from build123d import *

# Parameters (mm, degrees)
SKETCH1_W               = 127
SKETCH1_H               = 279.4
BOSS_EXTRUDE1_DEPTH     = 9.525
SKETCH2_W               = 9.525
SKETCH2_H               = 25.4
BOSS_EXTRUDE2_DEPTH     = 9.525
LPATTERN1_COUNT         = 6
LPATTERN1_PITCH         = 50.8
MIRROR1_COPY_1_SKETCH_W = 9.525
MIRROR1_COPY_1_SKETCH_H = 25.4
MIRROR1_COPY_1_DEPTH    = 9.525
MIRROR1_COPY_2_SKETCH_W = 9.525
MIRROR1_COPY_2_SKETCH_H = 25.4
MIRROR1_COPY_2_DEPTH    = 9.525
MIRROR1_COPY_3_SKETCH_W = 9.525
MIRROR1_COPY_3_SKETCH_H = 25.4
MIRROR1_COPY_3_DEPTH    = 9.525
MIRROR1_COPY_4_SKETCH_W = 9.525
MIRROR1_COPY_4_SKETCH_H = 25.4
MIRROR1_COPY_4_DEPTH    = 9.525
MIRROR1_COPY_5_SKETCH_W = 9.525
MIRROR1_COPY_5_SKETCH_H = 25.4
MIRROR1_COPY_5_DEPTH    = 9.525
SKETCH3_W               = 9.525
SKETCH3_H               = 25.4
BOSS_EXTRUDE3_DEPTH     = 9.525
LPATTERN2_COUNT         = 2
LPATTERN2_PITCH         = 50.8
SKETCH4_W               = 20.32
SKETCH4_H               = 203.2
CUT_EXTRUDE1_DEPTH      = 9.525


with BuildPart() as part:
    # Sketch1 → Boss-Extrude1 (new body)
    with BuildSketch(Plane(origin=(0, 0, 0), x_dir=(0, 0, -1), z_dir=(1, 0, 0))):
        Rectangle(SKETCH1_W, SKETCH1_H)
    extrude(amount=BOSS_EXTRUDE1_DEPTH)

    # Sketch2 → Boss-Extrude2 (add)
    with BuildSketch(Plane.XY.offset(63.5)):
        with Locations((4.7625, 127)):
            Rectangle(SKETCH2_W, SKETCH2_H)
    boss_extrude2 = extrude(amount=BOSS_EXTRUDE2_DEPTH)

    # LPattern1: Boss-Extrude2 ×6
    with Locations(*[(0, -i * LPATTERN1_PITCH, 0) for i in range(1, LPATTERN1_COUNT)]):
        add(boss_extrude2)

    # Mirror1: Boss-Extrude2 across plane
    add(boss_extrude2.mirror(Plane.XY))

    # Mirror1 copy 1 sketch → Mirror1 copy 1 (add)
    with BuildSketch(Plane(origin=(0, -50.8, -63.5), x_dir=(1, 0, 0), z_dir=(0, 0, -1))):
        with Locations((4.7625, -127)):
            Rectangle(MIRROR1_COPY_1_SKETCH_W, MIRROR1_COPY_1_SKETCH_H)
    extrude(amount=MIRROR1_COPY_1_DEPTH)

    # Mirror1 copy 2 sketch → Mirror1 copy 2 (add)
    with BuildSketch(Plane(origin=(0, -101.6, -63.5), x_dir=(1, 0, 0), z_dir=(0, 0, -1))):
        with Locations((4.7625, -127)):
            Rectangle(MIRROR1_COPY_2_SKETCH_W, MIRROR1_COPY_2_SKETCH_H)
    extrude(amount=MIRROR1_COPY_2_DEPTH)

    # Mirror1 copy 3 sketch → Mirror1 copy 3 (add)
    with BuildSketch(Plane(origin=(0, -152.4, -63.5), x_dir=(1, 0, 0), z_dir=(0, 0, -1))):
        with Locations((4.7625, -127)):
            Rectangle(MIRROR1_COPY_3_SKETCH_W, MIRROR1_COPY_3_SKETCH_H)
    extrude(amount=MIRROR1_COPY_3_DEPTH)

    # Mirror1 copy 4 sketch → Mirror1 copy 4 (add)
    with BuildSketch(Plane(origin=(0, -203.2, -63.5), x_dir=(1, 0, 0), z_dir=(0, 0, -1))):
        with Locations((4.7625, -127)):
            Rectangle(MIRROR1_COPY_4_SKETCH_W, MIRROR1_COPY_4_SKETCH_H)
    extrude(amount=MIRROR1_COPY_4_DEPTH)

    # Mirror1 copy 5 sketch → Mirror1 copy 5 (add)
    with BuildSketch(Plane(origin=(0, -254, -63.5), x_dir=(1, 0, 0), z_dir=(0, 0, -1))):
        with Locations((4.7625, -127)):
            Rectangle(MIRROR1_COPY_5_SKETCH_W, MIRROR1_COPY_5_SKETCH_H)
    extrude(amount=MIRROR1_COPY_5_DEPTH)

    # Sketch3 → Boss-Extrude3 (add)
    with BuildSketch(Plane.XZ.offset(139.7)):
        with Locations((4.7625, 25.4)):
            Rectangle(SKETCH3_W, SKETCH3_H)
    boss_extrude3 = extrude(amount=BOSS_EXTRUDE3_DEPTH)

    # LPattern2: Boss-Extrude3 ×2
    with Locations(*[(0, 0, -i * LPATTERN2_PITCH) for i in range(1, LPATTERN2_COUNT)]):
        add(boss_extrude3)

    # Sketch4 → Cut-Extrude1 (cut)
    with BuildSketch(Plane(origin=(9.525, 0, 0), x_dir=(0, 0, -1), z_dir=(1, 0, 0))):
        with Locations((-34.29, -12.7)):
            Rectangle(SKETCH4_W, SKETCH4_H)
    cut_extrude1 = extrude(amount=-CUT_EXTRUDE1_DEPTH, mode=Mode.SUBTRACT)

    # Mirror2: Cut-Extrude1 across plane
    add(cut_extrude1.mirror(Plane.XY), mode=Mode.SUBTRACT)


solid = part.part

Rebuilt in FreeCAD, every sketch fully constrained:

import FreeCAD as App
import Part
import Sketcher

V = App.Vector
Q = App.Units.Quantity

doc = App.newDocument("Part")
params = doc.addObject("Spreadsheet::Sheet", "Params")
for row, (alias, value) in enumerate([
    ("sketch1_width", "11 in"),
    ("sketch1_height", "5 in"),
    ("pad1_length", "0.375 in"),
    ("sketch2_height", "1 in"),
    ("sketch2_width", "0.375 in"),
    ("pad2_length", "0.375 in"),
    ("linearpattern_pitch", "2 in"),
    ("sketch3_height", "1 in"),
    ("sketch3_width", "0.375 in"),
    ("pad3_length", "0.375 in"),
    ("sketch4_height", "1 in"),
    ("sketch4_width", "0.375 in"),
    ("pad4_length", "0.375 in"),
    ("sketch5_height", "1 in"),
    ("sketch5_width", "0.375 in"),
    ("pad5_length", "0.375 in"),
    ("sketch6_height", "1 in"),
    ("sketch6_width", "0.375 in"),
    ("pad6_length", "0.375 in"),
    ("sketch7_height", "1 in"),
    ("sketch7_width", "0.375 in"),
    ("pad7_length", "0.375 in"),
    ("sketch8_height", "1 in"),
    ("sketch8_width", "0.375 in"),
    ("pad8_length", "0.375 in"),
    ("linearpattern2_pitch", "2 in"),
    ("sketch9_width", "8 in"),
    ("sketch9_height", "0.8 in"),
    ("pocket1_length", "0.375 in"),
], start=1):
    params.set(f"A{row}", alias)
    params.set(f"B{row}", "=" + value)
    params.setAlias(f"B{row}", alias)

body = doc.addObject("PartDesign::Body", "Body")

sketch1 = body.newObject("Sketcher::SketchObject", "Sketch")
sketch1.AttachmentSupport = (doc.getObject("YZ_Plane"), [""])
sketch1.MapMode = "FlatFace"
sketch1.addGeometry([
    Part.LineSegment(V(140, 64, 0), V(-140, 64, 0)),
    Part.LineSegment(V(-140, 64, 0), V(-140, -64, 0)),
    Part.LineSegment(V(-140, -64, 0), V(140, -64, 0)),
    Part.LineSegment(V(140, -64, 0), V(140, 64, 0)),
], False)
sketch1.addConstraint([
    Sketcher.Constraint("Coincident", 0, 2, 1, 1),
    Sketcher.Constraint("Coincident", 1, 2, 2, 1),
    Sketcher.Constraint("Coincident", 2, 2, 3, 1),
    Sketcher.Constraint("Coincident", 3, 2, 0, 1),
    Sketcher.Constraint("Horizontal", 0),
    Sketcher.Constraint("Vertical", 1),
    Sketcher.Constraint("Horizontal", 2),
    Sketcher.Constraint("Vertical", 3),
    Sketcher.Constraint("Symmetric", 0, 2, 2, 2, -1, 1),
    Sketcher.Constraint("DistanceX", 0, 2, 0, 1, Q("11 in")),
    Sketcher.Constraint("DistanceY", 1, 2, 1, 1, Q("5 in")),
])
sketch1.setExpression("Constraints[9]", "Params.sketch1_width")
sketch1.setExpression("Constraints[10]", "Params.sketch1_height")
pad1 = body.newObject("PartDesign::Pad", "Pad")
pad1.Profile = sketch1
pad1.setExpression("Length", "Params.pad1_length")

sketch2 = body.newObject("Sketcher::SketchObject", "Sketch001")
sketch2.AttachmentSupport = (doc.getObject("XY_Plane"), [""])
sketch2.MapMode = "FlatFace"
sketch2.AttachmentOffset = App.Placement(V(0, 0, 2.5 * 25.4), App.Rotation())
sketch2.addGeometry([
    Part.LineSegment(V(0, 140, 0), V(0, 114, 0)),
    Part.LineSegment(V(0, 114, 0), V(10, 114, 0)),
    Part.LineSegment(V(10, 114, 0), V(10, 140, 0)),
    Part.LineSegment(V(10, 140, 0), V(0, 140, 0)),
], False)
sketch2.addConstraint([
    Sketcher.Constraint("Coincident", 0, 2, 1, 1),
    Sketcher.Constraint("Coincident", 1, 2, 2, 1),
    Sketcher.Constraint("Coincident", 2, 2, 3, 1),
    Sketcher.Constraint("Coincident", 3, 2, 0, 1),
    Sketcher.Constraint("Vertical", 0),
    Sketcher.Constraint("Horizontal", 1),
    Sketcher.Constraint("Vertical", 2),
    Sketcher.Constraint("Horizontal", 3),
    Sketcher.Constraint("PointOnObject", 0, 2, -2),
    Sketcher.Constraint("DistanceY", 0, 2, 0, 1, Q("1 in")),
    Sketcher.Constraint("DistanceY", -1, 1, 0, 2, Q("4.5 in")),
    Sketcher.Constraint("DistanceX", 1, 1, 1, 2, Q("0.375 in")),
])
sketch2.setExpression("Constraints[9]", "Params.sketch2_height")
sketch2.setExpression("Constraints[11]", "Params.sketch2_width")
pad2 = body.newObject("PartDesign::Pad", "Pad001")
pad2.Profile = sketch2
pad2.setExpression("Length", "Params.pad2_length")
doc.recompute()

linearpattern = body.newObject("PartDesign::LinearPattern", "LinearPattern")
linearpattern.Originals = [pad2]
linearpattern.Direction = (doc.getObject("Y_Axis"), [""])
linearpattern.Mode = "offset"
linearpattern.setExpression("Offset", "Params.linearpattern_pitch")
linearpattern.Occurrences = 6
linearpattern.Reversed = True
body.Tip = linearpattern
doc.recompute()

mirrored = body.newObject("PartDesign::Mirrored", "Mirrored")
mirrored.Originals = [pad2]
mirrored.MirrorPlane = (doc.getObject("XY_Plane"), [""])
body.Tip = mirrored

sketch3 = body.newObject("Sketcher::SketchObject", "Sketch002")
sketch3.AttachmentSupport = (doc.getObject("XY_Plane"), [""])
sketch3.MapMode = "FlatFace"
sketch3.AttachmentOffset = App.Placement(V(0, 0, -2.5 * 25.4), App.Rotation())
sketch3.addGeometry([
    Part.LineSegment(V(0, 64, 0), V(0, 89, 0)),
    Part.LineSegment(V(0, 89, 0), V(10, 89, 0)),
    Part.LineSegment(V(10, 89, 0), V(10, 64, 0)),
    Part.LineSegment(V(10, 64, 0), V(0, 64, 0)),
], False)
sketch3.addConstraint([
    Sketcher.Constraint("Coincident", 0, 2, 1, 1),
    Sketcher.Constraint("Coincident", 1, 2, 2, 1),
    Sketcher.Constraint("Coincident", 2, 2, 3, 1),
    Sketcher.Constraint("Coincident", 3, 2, 0, 1),
    Sketcher.Constraint("Vertical", 0),
    Sketcher.Constraint("Horizontal", 1),
    Sketcher.Constraint("Vertical", 2),
    Sketcher.Constraint("Horizontal", 3),
    Sketcher.Constraint("PointOnObject", 0, 2, -2),
    Sketcher.Constraint("DistanceY", 0, 1, 0, 2, Q("1 in")),
    Sketcher.Constraint("DistanceY", -1, 1, 0, 2, Q("3.5 in")),
    Sketcher.Constraint("DistanceX", 1, 1, 1, 2, Q("0.375 in")),
])
sketch3.setExpression("Constraints[9]", "Params.sketch3_height")
sketch3.setExpression("Constraints[11]", "Params.sketch3_width")
pad3 = body.newObject("PartDesign::Pad", "Pad002")
pad3.Profile = sketch3
pad3.setExpression("Length", "Params.pad3_length")
pad3.Reversed = True

sketch4 = body.newObject("Sketcher::SketchObject", "Sketch003")
sketch4.AttachmentSupport = (doc.getObject("XY_Plane"), [""])
sketch4.MapMode = "FlatFace"
sketch4.AttachmentOffset = App.Placement(V(0, 0, -2.5 * 25.4), App.Rotation())
sketch4.addGeometry([
    Part.LineSegment(V(0, 13, 0), V(0, 38, 0)),
    Part.LineSegment(V(0, 38, 0), V(10, 38, 0)),
    Part.LineSegment(V(10, 38, 0), V(10, 13, 0)),
    Part.LineSegment(V(10, 13, 0), V(0, 13, 0)),
], False)
sketch4.addConstraint([
    Sketcher.Constraint("Coincident", 0, 2, 1, 1),
    Sketcher.Constraint("Coincident", 1, 2, 2, 1),
    Sketcher.Constraint("Coincident", 2, 2, 3, 1),
    Sketcher.Constraint("Coincident", 3, 2, 0, 1),
    Sketcher.Constraint("Vertical", 0),
    Sketcher.Constraint("Horizontal", 1),
    Sketcher.Constraint("Vertical", 2),
    Sketcher.Constraint("Horizontal", 3),
    Sketcher.Constraint("PointOnObject", 0, 2, -2),
    Sketcher.Constraint("DistanceY", 0, 1, 0, 2, Q("1 in")),
    Sketcher.Constraint("DistanceY", -1, 1, 0, 2, Q("1.5 in")),
    Sketcher.Constraint("DistanceX", 1, 1, 1, 2, Q("0.375 in")),
])
sketch4.setExpression("Constraints[9]", "Params.sketch4_height")
sketch4.setExpression("Constraints[11]", "Params.sketch4_width")
pad4 = body.newObject("PartDesign::Pad", "Pad003")
pad4.Profile = sketch4
pad4.setExpression("Length", "Params.pad4_length")
pad4.Reversed = True

sketch5 = body.newObject("Sketcher::SketchObject", "Sketch004")
sketch5.AttachmentSupport = (doc.getObject("XY_Plane"), [""])
sketch5.MapMode = "FlatFace"
sketch5.AttachmentOffset = App.Placement(V(0, 0, -2.5 * 25.4), App.Rotation())
sketch5.addGeometry([
    Part.LineSegment(V(0, -38, 0), V(0, -13, 0)),
    Part.LineSegment(V(0, -13, 0), V(10, -13, 0)),
    Part.LineSegment(V(10, -13, 0), V(10, -38, 0)),
    Part.LineSegment(V(10, -38, 0), V(0, -38, 0)),
], False)
sketch5.addConstraint([
    Sketcher.Constraint("Coincident", 0, 2, 1, 1),
    Sketcher.Constraint("Coincident", 1, 2, 2, 1),
    Sketcher.Constraint("Coincident", 2, 2, 3, 1),
    Sketcher.Constraint("Coincident", 3, 2, 0, 1),
    Sketcher.Constraint("Vertical", 0),
    Sketcher.Constraint("Horizontal", 1),
    Sketcher.Constraint("Vertical", 2),
    Sketcher.Constraint("Horizontal", 3),
    Sketcher.Constraint("PointOnObject", 0, 2, -2),
    Sketcher.Constraint("DistanceY", 0, 1, 0, 2, Q("1 in")),
    Sketcher.Constraint("DistanceY", 0, 2, -1, 1, Q("0.5 in")),
    Sketcher.Constraint("DistanceX", 1, 1, 1, 2, Q("0.375 in")),
])
sketch5.setExpression("Constraints[9]", "Params.sketch5_height")
sketch5.setExpression("Constraints[11]", "Params.sketch5_width")
pad5 = body.newObject("PartDesign::Pad", "Pad004")
pad5.Profile = sketch5
pad5.setExpression("Length", "Params.pad5_length")
pad5.Reversed = True

sketch6 = body.newObject("Sketcher::SketchObject", "Sketch005")
sketch6.AttachmentSupport = (doc.getObject("XY_Plane"), [""])
sketch6.MapMode = "FlatFace"
sketch6.AttachmentOffset = App.Placement(V(0, 0, -2.5 * 25.4), App.Rotation())
sketch6.addGeometry([
    Part.LineSegment(V(0, -89, 0), V(0, -64, 0)),
    Part.LineSegment(V(0, -64, 0), V(10, -64, 0)),
    Part.LineSegment(V(10, -64, 0), V(10, -89, 0)),
    Part.LineSegment(V(10, -89, 0), V(0, -89, 0)),
], False)
sketch6.addConstraint([
    Sketcher.Constraint("Coincident", 0, 2, 1, 1),
    Sketcher.Constraint("Coincident", 1, 2, 2, 1),
    Sketcher.Constraint("Coincident", 2, 2, 3, 1),
    Sketcher.Constraint("Coincident", 3, 2, 0, 1),
    Sketcher.Constraint("Vertical", 0),
    Sketcher.Constraint("Horizontal", 1),
    Sketcher.Constraint("Vertical", 2),
    Sketcher.Constraint("Horizontal", 3),
    Sketcher.Constraint("PointOnObject", 0, 2, -2),
    Sketcher.Constraint("DistanceY", 0, 1, 0, 2, Q("1 in")),
    Sketcher.Constraint("DistanceY", 0, 2, -1, 1, Q("2.5 in")),
    Sketcher.Constraint("DistanceX", 1, 1, 1, 2, Q("0.375 in")),
])
sketch6.setExpression("Constraints[9]", "Params.sketch6_height")
sketch6.setExpression("Constraints[11]", "Params.sketch6_width")
pad6 = body.newObject("PartDesign::Pad", "Pad005")
pad6.Profile = sketch6
pad6.setExpression("Length", "Params.pad6_length")
pad6.Reversed = True

sketch7 = body.newObject("Sketcher::SketchObject", "Sketch006")
sketch7.AttachmentSupport = (doc.getObject("XY_Plane"), [""])
sketch7.MapMode = "FlatFace"
sketch7.AttachmentOffset = App.Placement(V(0, 0, -2.5 * 25.4), App.Rotation())
sketch7.addGeometry([
    Part.LineSegment(V(0, -140, 0), V(0, -114, 0)),
    Part.LineSegment(V(0, -114, 0), V(10, -114, 0)),
    Part.LineSegment(V(10, -114, 0), V(10, -140, 0)),
    Part.LineSegment(V(10, -140, 0), V(0, -140, 0)),
], False)
sketch7.addConstraint([
    Sketcher.Constraint("Coincident", 0, 2, 1, 1),
    Sketcher.Constraint("Coincident", 1, 2, 2, 1),
    Sketcher.Constraint("Coincident", 2, 2, 3, 1),
    Sketcher.Constraint("Coincident", 3, 2, 0, 1),
    Sketcher.Constraint("Vertical", 0),
    Sketcher.Constraint("Horizontal", 1),
    Sketcher.Constraint("Vertical", 2),
    Sketcher.Constraint("Horizontal", 3),
    Sketcher.Constraint("PointOnObject", 0, 2, -2),
    Sketcher.Constraint("DistanceY", 0, 1, 0, 2, Q("1 in")),
    Sketcher.Constraint("DistanceY", 0, 2, -1, 1, Q("4.5 in")),
    Sketcher.Constraint("DistanceX", 1, 1, 1, 2, Q("0.375 in")),
])
sketch7.setExpression("Constraints[9]", "Params.sketch7_height")
sketch7.setExpression("Constraints[11]", "Params.sketch7_width")
pad7 = body.newObject("PartDesign::Pad", "Pad006")
pad7.Profile = sketch7
pad7.setExpression("Length", "Params.pad7_length")
pad7.Reversed = True

sketch8 = body.newObject("Sketcher::SketchObject", "Sketch007")
sketch8.AttachmentSupport = (doc.getObject("XZ_Plane"), [""])
sketch8.MapMode = "FlatFace"
sketch8.AttachmentOffset = App.Placement(V(0, 0, 5.5 * 25.4), App.Rotation())
sketch8.addGeometry([
    Part.LineSegment(V(0, 38, 0), V(0, 13, 0)),
    Part.LineSegment(V(0, 13, 0), V(10, 13, 0)),
    Part.LineSegment(V(10, 13, 0), V(10, 38, 0)),
    Part.LineSegment(V(10, 38, 0), V(0, 38, 0)),
], False)
sketch8.addConstraint([
    Sketcher.Constraint("Coincident", 0, 2, 1, 1),
    Sketcher.Constraint("Coincident", 1, 2, 2, 1),
    Sketcher.Constraint("Coincident", 2, 2, 3, 1),
    Sketcher.Constraint("Coincident", 3, 2, 0, 1),
    Sketcher.Constraint("Vertical", 0),
    Sketcher.Constraint("Horizontal", 1),
    Sketcher.Constraint("Vertical", 2),
    Sketcher.Constraint("Horizontal", 3),
    Sketcher.Constraint("PointOnObject", 0, 2, -2),
    Sketcher.Constraint("DistanceY", 0, 2, 0, 1, Q("1 in")),
    Sketcher.Constraint("DistanceY", -1, 1, 0, 2, Q("0.5 in")),
    Sketcher.Constraint("DistanceX", 1, 1, 1, 2, Q("0.375 in")),
])
sketch8.setExpression("Constraints[9]", "Params.sketch8_height")
sketch8.setExpression("Constraints[11]", "Params.sketch8_width")
pad8 = body.newObject("PartDesign::Pad", "Pad007")
pad8.Profile = sketch8
pad8.setExpression("Length", "Params.pad8_length")
doc.recompute()

linearpattern2 = body.newObject("PartDesign::LinearPattern", "LinearPattern001")
linearpattern2.Originals = [pad8]
linearpattern2.Direction = (doc.getObject("Z_Axis"), [""])
linearpattern2.Mode = "offset"
linearpattern2.setExpression("Offset", "Params.linearpattern2_pitch")
linearpattern2.Occurrences = 2
linearpattern2.Reversed = True
body.Tip = linearpattern2

sketch9 = body.newObject("Sketcher::SketchObject", "Sketch008")
sketch9.AttachmentSupport = (doc.getObject("YZ_Plane"), [""])
sketch9.MapMode = "FlatFace"
sketch9.AttachmentOffset = App.Placement(V(0, 0, 0.375 * 25.4), App.Rotation())
sketch9.addGeometry([
    Part.LineSegment(V(89, 44, 0), V(-114, 44, 0)),
    Part.LineSegment(V(-114, 44, 0), V(-114, 24, 0)),
    Part.LineSegment(V(-114, 24, 0), V(89, 24, 0)),
    Part.LineSegment(V(89, 24, 0), V(89, 44, 0)),
], False)
sketch9.addConstraint([
    Sketcher.Constraint("Coincident", 0, 2, 1, 1),
    Sketcher.Constraint("Coincident", 1, 2, 2, 1),
    Sketcher.Constraint("Coincident", 2, 2, 3, 1),
    Sketcher.Constraint("Coincident", 3, 2, 0, 1),
    Sketcher.Constraint("Horizontal", 0),
    Sketcher.Constraint("Vertical", 1),
    Sketcher.Constraint("Horizontal", 2),
    Sketcher.Constraint("Vertical", 3),
    Sketcher.Constraint("DistanceX", 0, 2, 0, 1, Q("8 in")),
    Sketcher.Constraint("DistanceY", 1, 2, 1, 1, Q("0.8 in")),
    Sketcher.Constraint("DistanceX", 0, 2, -1, 1, Q("4.5 in")),
    Sketcher.Constraint("DistanceY", -1, 1, 0, 2, Q("1.75 in")),
])
sketch9.setExpression("Constraints[8]", "Params.sketch9_width")
sketch9.setExpression("Constraints[9]", "Params.sketch9_height")
pocket1 = body.newObject("PartDesign::Pocket", "Pocket")
pocket1.Profile = sketch9
pocket1.setExpression("Length", "Params.pocket1_length")
doc.recompute()

mirrored2 = body.newObject("PartDesign::Mirrored", "Mirrored001")
mirrored2.Originals = [pocket1]
mirrored2.MirrorPlane = (doc.getObject("XY_Plane"), [""])
body.Tip = mirrored2

doc.recompute()
